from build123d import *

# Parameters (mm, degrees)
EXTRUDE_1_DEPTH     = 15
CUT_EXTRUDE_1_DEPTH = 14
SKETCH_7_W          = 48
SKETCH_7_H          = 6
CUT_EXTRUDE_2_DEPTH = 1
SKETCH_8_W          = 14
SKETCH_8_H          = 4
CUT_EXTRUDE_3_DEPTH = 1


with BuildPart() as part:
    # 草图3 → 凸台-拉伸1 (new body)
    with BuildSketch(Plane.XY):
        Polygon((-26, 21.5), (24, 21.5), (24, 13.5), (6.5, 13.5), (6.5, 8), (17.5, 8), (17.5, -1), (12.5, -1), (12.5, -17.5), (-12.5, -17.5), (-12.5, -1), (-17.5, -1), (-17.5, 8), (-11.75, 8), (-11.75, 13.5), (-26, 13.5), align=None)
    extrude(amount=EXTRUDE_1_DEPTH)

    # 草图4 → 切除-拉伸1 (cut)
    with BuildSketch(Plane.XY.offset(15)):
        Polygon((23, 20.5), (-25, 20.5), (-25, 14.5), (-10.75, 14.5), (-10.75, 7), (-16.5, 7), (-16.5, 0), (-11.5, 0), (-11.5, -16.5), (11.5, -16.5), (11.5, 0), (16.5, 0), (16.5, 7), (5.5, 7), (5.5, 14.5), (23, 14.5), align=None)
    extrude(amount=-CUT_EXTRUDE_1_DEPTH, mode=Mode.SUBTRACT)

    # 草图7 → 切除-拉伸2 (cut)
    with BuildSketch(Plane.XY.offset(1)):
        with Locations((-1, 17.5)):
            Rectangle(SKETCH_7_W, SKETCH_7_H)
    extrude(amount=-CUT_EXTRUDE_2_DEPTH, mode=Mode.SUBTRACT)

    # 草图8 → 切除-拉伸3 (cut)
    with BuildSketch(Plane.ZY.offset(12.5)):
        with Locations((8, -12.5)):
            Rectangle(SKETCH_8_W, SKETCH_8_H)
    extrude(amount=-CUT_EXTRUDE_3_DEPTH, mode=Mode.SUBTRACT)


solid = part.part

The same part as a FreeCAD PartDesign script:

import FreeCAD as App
import Part
import Sketcher

V = App.Vector
Q = App.Units.Quantity

doc = App.newDocument("Part")
body = doc.addObject("PartDesign::Body", "Body")

# Sketch on XY plane
sketch1 = doc.addObject("Sketcher::SketchObject", "Sketch")
body.addObject(sketch1)
sketch1.AttachmentSupport = (doc.XY_Plane, [""])
sketch1.MapMode = "FlatFace"
sketch1.addGeometry([
    Part.LineSegment(V(24, 21.5, 0), V(-26, 21.5, 0)),  # 0
    Part.LineSegment(V(-26, 21.5, 0), V(-26, 13.5, 0)),  # 1
    Part.LineSegment(V(-26, 13.5, 0), V(-11.75, 13.5, 0)),  # 2
    Part.LineSegment(V(-11.75, 13.5, 0), V(-11.75, 8, 0)),  # 3
    Part.LineSegment(V(-11.75, 8, 0), V(-17.5, 8, 0)),  # 4
    Part.LineSegment(V(-17.5, 8, 0), V(-17.5, -1, 0)),  # 5
    Part.LineSegment(V(-17.5, -1, 0), V(-12.5, -1, 0)),  # 6
    Part.LineSegment(V(-12.5, -1, 0), V(-12.5, -17.5, 0)),  # 7
    Part.LineSegment(V(-12.5, -17.5, 0), V(12.5, -17.5, 0)),  # 8
    Part.LineSegment(V(12.5, -17.5, 0), V(12.5, -1, 0)),  # 9
    Part.LineSegment(V(12.5, -1, 0), V(17.5, -1, 0)),  # 10
    Part.LineSegment(V(17.5, -1, 0), V(17.5, 8, 0)),  # 11
    Part.LineSegment(V(17.5, 8, 0), V(6.5, 8, 0)),  # 12
    Part.LineSegment(V(6.5, 8, 0), V(6.5, 13.5, 0)),  # 13
    Part.LineSegment(V(6.5, 13.5, 0), V(24, 13.5, 0)),  # 14
    Part.LineSegment(V(24, 13.5, 0), V(24, 21.5, 0)),  # 15
], False)
sketch1.addConstraint([
    Sketcher.Constraint("Coincident", 0, 2, 1, 1),
    Sketcher.Constraint("Coincident", 1, 2, 2, 1),
    Sketcher.Constraint("Coincident", 2, 2, 3, 1),
    Sketcher.Constraint("Coincident", 3, 2, 4, 1),
    Sketcher.Constraint("Coincident", 4, 2, 5, 1),
    Sketcher.Constraint("Coincident", 5, 2, 6, 1),
    Sketcher.Constraint("Coincident", 6, 2, 7, 1),
    Sketcher.Constraint("Coincident", 7, 2, 8, 1),
    Sketcher.Constraint("Coincident", 8, 2, 9, 1),
    Sketcher.Constraint("Coincident", 9, 2, 10, 1),
    Sketcher.Constraint("Coincident", 10, 2, 11, 1),
    Sketcher.Constraint("Coincident", 11, 2, 12, 1),
    Sketcher.Constraint("Coincident", 12, 2, 13, 1),
    Sketcher.Constraint("Coincident", 13, 2, 14, 1),
    Sketcher.Constraint("Coincident", 14, 2, 15, 1),
    Sketcher.Constraint("Coincident", 15, 2, 0, 1),
    Sketcher.Constraint("Horizontal", 0),
    Sketcher.Constraint("Vertical", 1),
    Sketcher.Constraint("Horizontal", 2),
    Sketcher.Constraint("Vertical", 3),
    Sketcher.Constraint("Horizontal", 4),
    Sketcher.Constraint("Vertical", 5),
    Sketcher.Constraint("Horizontal", 6),
    Sketcher.Constraint("Vertical", 7),
    Sketcher.Constraint("Horizontal", 8),
    Sketcher.Constraint("Vertical", 9),
    Sketcher.Constraint("Horizontal", 10),
    Sketcher.Constraint("Vertical", 11),
    Sketcher.Constraint("Horizontal", 12),
    Sketcher.Constraint("Vertical", 13),
    Sketcher.Constraint("Horizontal", 14),
    Sketcher.Constraint("Vertical", 15),
    Sketcher.Constraint("Symmetric", 6, 2, 9, 2, -2),
    Sketcher.Constraint("Symmetric", 4, 2, 11, 2, -2),
    Sketcher.Constraint("Horizontal", 2, 2, 13, 2),
    Sketcher.Constraint("DistanceX", 0, 2, 0, 1, Q("50 mm")),
    Sketcher.Constraint("DistanceX", 6, 1, 6, 2, Q("5 mm")),
    Sketcher.Constraint("DistanceX", 8, 1, 8, 2, Q("25 mm")),
    Sketcher.Constraint("DistanceX", 12, 2, 12, 1, Q("11 mm")),
    Sketcher.Constraint("DistanceY", 1, 2, 1, 1, Q("8 mm")),
    Sketcher.Constraint("DistanceY", 5, 2, 5, 1, Q("9 mm")),
    Sketcher.Constraint("DistanceX", 14, 1, 14, 2, Q("17.5 mm")),
    Sketcher.Constraint("DistanceY", 3, 2, 3, 1, Q("5.5 mm")),
    Sketcher.Constraint("DistanceY", 7, 2, 7, 1, Q("16.5 mm")),
    Sketcher.Constraint("DistanceY", -1, 1, 3, 2, Q("8 mm")),
    Sketcher.Constraint("DistanceX", 2, 1, 2, 2, Q("14.25 mm")),
])
pad1 = doc.addObject("PartDesign::Pad", "Pad")
body.addObject(pad1)
pad1.Profile = sketch1
pad1.Length = 15

# Sketch on XY plane
sketch2 = doc.addObject("Sketcher::SketchObject", "Sketch001")
body.addObject(sketch2)
sketch2.AttachmentSupport = (doc.XY_Plane, [""])
sketch2.MapMode = "FlatFace"
sketch2.AttachmentOffset = App.Placement(V(0, 0, 15), App.Rotation())
sketch2.addGeometry([
    Part.LineSegment(V(23, 20.5, 0), V(-25, 20.5, 0)),  # 0
    Part.LineSegment(V(-25, 20.5, 0), V(-25, 14.5, 0)),  # 1
    Part.LineSegment(V(-25, 14.5, 0), V(-10.75, 14.5, 0)),  # 2
    Part.LineSegment(V(-10.75, 14.5, 0), V(-10.75, 7, 0)),  # 3
    Part.LineSegment(V(-10.75, 7, 0), V(-16.5, 7, 0)),  # 4
    Part.LineSegment(V(-16.5, 7, 0), V(-16.5, 0, 0)),  # 5
    Part.LineSegment(V(-16.5, 0, 0), V(-11.5, 0, 0)),  # 6
    Part.LineSegment(V(-11.5, 0, 0), V(-11.5, -16.5, 0)),  # 7
    Part.LineSegment(V(-11.5, -16.5, 0), V(11.5, -16.5, 0)),  # 8
    Part.LineSegment(V(11.5, -16.5, 0), V(11.5, 0, 0)),  # 9
    Part.LineSegment(V(11.5, 0, 0), V(16.5, 0, 0)),  # 10
    Part.LineSegment(V(16.5, 0, 0), V(16.5, 7, 0)),  # 11
    Part.LineSegment(V(16.5, 7, 0), V(5.5, 7, 0)),  # 12
    Part.LineSegment(V(5.5, 7, 0), V(5.5, 14.5, 0)),  # 13
    Part.LineSegment(V(5.5, 14.5, 0), V(23, 14.5, 0)),  # 14
    Part.LineSegment(V(23, 14.5, 0), V(23, 20.5, 0)),  # 15
], False)
sketch2.addConstraint([
    Sketcher.Constraint("Coincident", 0, 2, 1, 1),
    Sketcher.Constraint("Coincident", 1, 2, 2, 1),
    Sketcher.Constraint("Coincident", 2, 2, 3, 1),
    Sketcher.Constraint("Coincident", 3, 2, 4, 1),
    Sketcher.Constraint("Coincident", 4, 2, 5, 1),
    Sketcher.Constraint("Coincident", 5, 2, 6, 1),
    Sketcher.Constraint("Coincident", 6, 2, 7, 1),
    Sketcher.Constraint("Coincident", 7, 2, 8, 1),
    Sketcher.Constraint("Coincident", 8, 2, 9, 1),
    Sketcher.Constraint("Coincident", 9, 2, 10, 1),
    Sketcher.Constraint("Coincident", 10, 2, 11, 1),
    Sketcher.Constraint("Coincident", 11, 2, 12, 1),
    Sketcher.Constraint("Coincident", 12, 2, 13, 1),
    Sketcher.Constraint("Coincident", 13, 2, 14, 1),
    Sketcher.Constraint("Coincident", 14, 2, 15, 1),
    Sketcher.Constraint("Coincident", 15, 2, 0, 1),
    Sketcher.Constraint("Horizontal", 0),
    Sketcher.Constraint("Vertical", 1),
    Sketcher.Constraint("Horizontal", 2),
    Sketcher.Constraint("Vertical", 3),
    Sketcher.Constraint("Horizontal", 4),
    Sketcher.Constraint("Vertical", 5),
    Sketcher.Constraint("Horizontal", 6),
    Sketcher.Constraint("Vertical", 7),
    Sketcher.Constraint("Horizontal", 8),
    Sketcher.Constraint("Vertical", 9),
    Sketcher.Constraint("Horizontal", 10),
    Sketcher.Constraint("Vertical", 11),
    Sketcher.Constraint("Horizontal", 12),
    Sketcher.Constraint("Vertical", 13),
    Sketcher.Constraint("Horizontal", 14),
    Sketcher.Constraint("Vertical", 15),
    Sketcher.Constraint("Symmetric", 6, 2, 9, 2, -1, 1),
    Sketcher.Constraint("Symmetric", 5, 2, 10, 2, -2),
    Sketcher.Constraint("Horizontal", 4, 2, 11, 2),
    Sketcher.Constraint("Horizontal", 2, 2, 13, 2),
    Sketcher.Constraint("DistanceX", 0, 2, 0, 1, Q("48 mm")),
    Sketcher.Constraint("DistanceX", 6, 1, 6, 2, Q("5 mm")),
    Sketcher.Constraint("DistanceX", 8, 1, 8, 2, Q("23 mm")),
    Sketcher.Constraint("DistanceX", 12, 2, 12, 1, Q("11 mm")),
    Sketcher.Constraint("DistanceY", 1, 2, 1, 1, Q("6 mm")),
    Sketcher.Constraint("DistanceY", 5, 2, 5, 1, Q("7 mm")),
    Sketcher.Constraint("DistanceX", 14, 1, 14, 2, Q("17.5 mm")),
    Sketcher.Constraint("DistanceY", 3, 2, 3, 1, Q("7.5 mm")),
    Sketcher.Constraint("DistanceY", 7, 2, 7, 1, Q("16.5 mm")),
    Sketcher.Constraint("DistanceX", 2, 1, 2, 2, Q("14.25 mm")),
])
pocket1 = doc.addObject("PartDesign::Pocket", "Pocket")
body.addObject(pocket1)
pocket1.Profile = sketch2
pocket1.Length = 14

# Sketch on XY plane
sketch3 = doc.addObject("Sketcher::SketchObject", "Sketch002")
body.addObject(sketch3)
sketch3.AttachmentSupport = (doc.XY_Plane, [""])
sketch3.MapMode = "FlatFace"
sketch3.AttachmentOffset = App.Placement(V(0, 0, 1), App.Rotation())
sketch3.addGeometry([
    Part.LineSegment(V(-25, 20.5, 0), V(-25, 14.5, 0)),
    Part.LineSegment(V(-25, 14.5, 0), V(23, 14.5, 0)),
    Part.LineSegment(V(23, 14.5, 0), V(23, 20.5, 0)),
    Part.LineSegment(V(23, 20.5, 0), V(-25, 20.5, 0)),
], False)
sketch3.addConstraint([
    Sketcher.Constraint("Coincident", 0, 2, 1, 1),
    Sketcher.Constraint("Coincident", 1, 2, 2, 1),
    Sketcher.Constraint("Coincident", 2, 2, 3, 1),
    Sketcher.Constraint("Coincident", 3, 2, 0, 1),
    Sketcher.Constraint("Vertical", 0),
    Sketcher.Constraint("Horizontal", 1),
    Sketcher.Constraint("Vertical", 2),
    Sketcher.Constraint("Horizontal", 3),
    Sketcher.Constraint("DistanceX", 1, 1, 1, 2, Q("48 mm")),
    Sketcher.Constraint("DistanceY", 0, 2, 0, 1, Q("6 mm")),
    Sketcher.Constraint("DistanceX", 0, 2, -1, 1, Q("25 mm")),
    Sketcher.Constraint("DistanceY", -1, 1, 0, 2, Q("14.5 mm")),
])
pocket2 = doc.addObject("PartDesign::Pocket", "Pocket001")
body.addObject(pocket2)
pocket2.Profile = sketch3
pocket2.Length = 1

# Sketch on YZ plane
sketch4 = doc.addObject("Sketcher::SketchObject", "Sketch003")
body.addObject(sketch4)
sketch4.AttachmentSupport = (doc.YZ_Plane, [""])
sketch4.MapMode = "FlatFace"
sketch4.AttachmentOffset = App.Placement(V(0, 0, -12.5), App.Rotation())
sketch4.addGeometry([
    Part.LineSegment(V(-10.5, 1, 0), V(-14.5, 1, 0)),
    Part.LineSegment(V(-14.5, 1, 0), V(-14.5, 15, 0)),
    Part.LineSegment(V(-14.5, 15, 0), V(-10.5, 15, 0)),
    Part.LineSegment(V(-10.5, 15, 0), V(-10.5, 1, 0)),
], False)
sketch4.addConstraint([
    Sketcher.Constraint("Coincident", 0, 2, 1, 1),
    Sketcher.Constraint("Coincident", 1, 2, 2, 1),
    Sketcher.Constraint("Coincident", 2, 2, 3, 1),
    Sketcher.Constraint("Coincident", 3, 2, 0, 1),
    Sketcher.Constraint("Horizontal", 0),
    Sketcher.Constraint("Vertical", 1),
    Sketcher.Constraint("Horizontal", 2),
    Sketcher.Constraint("Vertical", 3),
    Sketcher.Constraint("DistanceX", 0, 2, 0, 1, Q("4 mm")),
    Sketcher.Constraint("DistanceY", 1, 1, 1, 2, Q("14 mm")),
    Sketcher.Constraint("DistanceY", -1, 1, 0, 2, Q("1 mm")),
    Sketcher.Constraint("DistanceX", 0, 2, -1, 1, Q("14.5 mm")),
])
pocket3 = doc.addObject("PartDesign::Pocket", "Pocket002")
body.addObject(pocket3)
pocket3.Profile = sketch4
pocket3.Length = 1
pocket3.Reversed = True

doc.recompute()
